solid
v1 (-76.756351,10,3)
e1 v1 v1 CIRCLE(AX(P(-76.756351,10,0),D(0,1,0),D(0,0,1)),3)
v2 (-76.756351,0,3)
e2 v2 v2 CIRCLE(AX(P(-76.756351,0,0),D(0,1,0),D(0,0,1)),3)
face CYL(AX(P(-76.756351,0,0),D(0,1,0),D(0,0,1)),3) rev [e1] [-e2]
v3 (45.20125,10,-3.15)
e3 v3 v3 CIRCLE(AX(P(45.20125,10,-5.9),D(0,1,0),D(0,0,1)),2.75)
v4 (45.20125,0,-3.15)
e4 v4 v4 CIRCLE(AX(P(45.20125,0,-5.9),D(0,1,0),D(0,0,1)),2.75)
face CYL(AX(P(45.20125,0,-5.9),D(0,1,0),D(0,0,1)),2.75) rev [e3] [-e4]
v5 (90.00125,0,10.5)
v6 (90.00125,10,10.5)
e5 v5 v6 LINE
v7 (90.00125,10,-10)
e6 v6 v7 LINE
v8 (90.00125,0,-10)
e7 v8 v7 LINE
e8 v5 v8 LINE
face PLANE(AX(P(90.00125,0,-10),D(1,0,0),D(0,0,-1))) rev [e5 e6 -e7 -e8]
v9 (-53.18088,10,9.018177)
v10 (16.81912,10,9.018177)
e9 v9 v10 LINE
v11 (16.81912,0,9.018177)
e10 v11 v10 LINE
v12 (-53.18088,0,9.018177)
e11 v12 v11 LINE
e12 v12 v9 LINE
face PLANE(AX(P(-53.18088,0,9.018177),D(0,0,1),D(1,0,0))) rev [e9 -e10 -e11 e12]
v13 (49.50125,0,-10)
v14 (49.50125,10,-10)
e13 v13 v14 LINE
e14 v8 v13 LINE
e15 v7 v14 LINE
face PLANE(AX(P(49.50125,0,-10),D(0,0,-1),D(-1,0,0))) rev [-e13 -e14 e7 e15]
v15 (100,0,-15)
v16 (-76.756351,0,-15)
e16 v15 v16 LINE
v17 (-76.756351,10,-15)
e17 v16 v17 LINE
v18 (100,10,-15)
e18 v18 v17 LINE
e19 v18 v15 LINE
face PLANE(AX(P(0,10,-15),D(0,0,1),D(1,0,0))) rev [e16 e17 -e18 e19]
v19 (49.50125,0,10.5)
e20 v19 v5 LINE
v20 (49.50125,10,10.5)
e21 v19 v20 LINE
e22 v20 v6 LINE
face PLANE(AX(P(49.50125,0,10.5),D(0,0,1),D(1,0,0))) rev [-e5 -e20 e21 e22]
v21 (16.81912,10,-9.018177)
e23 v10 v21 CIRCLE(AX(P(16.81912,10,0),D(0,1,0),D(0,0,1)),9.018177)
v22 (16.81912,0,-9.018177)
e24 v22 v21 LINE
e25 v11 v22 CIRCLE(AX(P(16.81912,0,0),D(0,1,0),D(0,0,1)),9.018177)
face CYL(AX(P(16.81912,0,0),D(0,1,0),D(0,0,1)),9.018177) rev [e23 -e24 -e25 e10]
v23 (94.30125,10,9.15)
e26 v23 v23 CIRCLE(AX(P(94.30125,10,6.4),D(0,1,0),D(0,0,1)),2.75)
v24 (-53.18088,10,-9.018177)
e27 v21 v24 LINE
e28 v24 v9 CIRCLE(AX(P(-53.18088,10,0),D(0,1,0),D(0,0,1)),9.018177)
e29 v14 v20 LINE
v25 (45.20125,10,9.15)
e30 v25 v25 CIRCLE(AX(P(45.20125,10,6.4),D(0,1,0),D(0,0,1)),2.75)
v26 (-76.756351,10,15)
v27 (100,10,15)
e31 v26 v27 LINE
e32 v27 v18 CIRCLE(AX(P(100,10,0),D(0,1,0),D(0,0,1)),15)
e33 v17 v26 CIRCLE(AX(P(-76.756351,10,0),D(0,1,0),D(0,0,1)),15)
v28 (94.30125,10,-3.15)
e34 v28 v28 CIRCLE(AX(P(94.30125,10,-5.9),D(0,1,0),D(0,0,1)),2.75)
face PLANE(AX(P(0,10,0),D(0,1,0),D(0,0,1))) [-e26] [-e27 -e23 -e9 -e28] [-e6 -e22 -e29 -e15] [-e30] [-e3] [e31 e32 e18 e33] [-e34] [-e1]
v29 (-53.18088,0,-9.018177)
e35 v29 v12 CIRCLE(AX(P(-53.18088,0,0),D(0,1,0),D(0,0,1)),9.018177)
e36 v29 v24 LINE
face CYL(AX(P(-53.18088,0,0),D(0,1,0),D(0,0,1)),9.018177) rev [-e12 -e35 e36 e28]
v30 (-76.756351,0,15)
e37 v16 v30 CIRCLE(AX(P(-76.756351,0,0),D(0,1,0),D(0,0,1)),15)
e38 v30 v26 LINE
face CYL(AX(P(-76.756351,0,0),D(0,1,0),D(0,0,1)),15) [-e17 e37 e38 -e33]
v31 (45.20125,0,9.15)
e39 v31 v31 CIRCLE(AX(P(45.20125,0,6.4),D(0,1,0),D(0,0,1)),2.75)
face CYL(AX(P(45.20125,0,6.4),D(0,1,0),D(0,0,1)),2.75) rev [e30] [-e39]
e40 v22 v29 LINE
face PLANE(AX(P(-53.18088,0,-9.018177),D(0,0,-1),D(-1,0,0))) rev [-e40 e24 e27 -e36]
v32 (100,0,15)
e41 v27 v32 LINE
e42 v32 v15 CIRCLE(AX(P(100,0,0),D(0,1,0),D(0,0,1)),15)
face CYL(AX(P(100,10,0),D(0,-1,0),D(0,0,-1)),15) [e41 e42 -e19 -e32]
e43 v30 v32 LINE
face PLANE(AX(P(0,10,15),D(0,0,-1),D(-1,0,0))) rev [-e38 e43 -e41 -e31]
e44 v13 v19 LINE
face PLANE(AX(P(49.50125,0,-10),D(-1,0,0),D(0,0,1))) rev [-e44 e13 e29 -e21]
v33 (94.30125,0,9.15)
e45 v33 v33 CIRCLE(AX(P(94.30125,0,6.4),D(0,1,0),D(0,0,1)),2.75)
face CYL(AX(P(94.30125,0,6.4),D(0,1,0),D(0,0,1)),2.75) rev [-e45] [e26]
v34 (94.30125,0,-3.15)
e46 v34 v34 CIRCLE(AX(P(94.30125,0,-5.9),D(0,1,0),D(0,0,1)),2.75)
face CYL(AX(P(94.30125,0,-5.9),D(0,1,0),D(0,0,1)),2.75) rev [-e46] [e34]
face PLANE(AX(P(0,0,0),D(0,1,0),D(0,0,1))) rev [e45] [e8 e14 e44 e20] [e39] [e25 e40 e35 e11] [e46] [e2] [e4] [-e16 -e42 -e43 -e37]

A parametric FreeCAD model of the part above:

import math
import FreeCAD as App
import Part
import Sketcher

doc = App.newDocument("Part")
body = doc.addObject("PartDesign::Body", "Body")

# Sketch on XZ plane
sketch1 = body.newObject("Sketcher::SketchObject", "Sketch")
sketch1.AttachmentSupport = (doc.getObject("XZ_Plane"), [""])
sketch1.MapMode = "FlatFace"
sketch1.addGeometry([
    Part.LineSegment(App.Vector(100, -15, 0), App.Vector(0, -15, 0)),  # 0
    Part.ArcOfCircle(Part.Circle(App.Vector(0, 0, 0), App.Vector(0, 0, 1), 15), math.radians(90), math.radians(270)),  # 1
    Part.LineSegment(App.Vector(0, 15, 0), App.Vector(100, 15, 0)),  # 2
    Part.ArcOfCircle(Part.Circle(App.Vector(100, 0, 0), App.Vector(0, 0, 1), 15), math.radians(-90), math.radians(90)),  # 3
    Part.Circle(App.Vector(0, 0, 0), App.Vector(0, 0, 1), 1.4),  # 4
], False)
sketch1.addConstraint([
    Sketcher.Constraint("Tangent", 0, 2, 1, 2),
    Sketcher.Constraint("Tangent", 1, 1, 2, 1),
    Sketcher.Constraint("Tangent", 2, 2, 3, 2),
    Sketcher.Constraint("Tangent", 3, 1, 0, 1),
    Sketcher.Constraint("Horizontal", 0),
    Sketcher.Constraint("Horizontal", 2),
    Sketcher.Constraint("Coincident", 1, 3, -1, 1),
    Sketcher.Constraint("Coincident", 4, 3, -1, 1),
    Sketcher.Constraint("Radius", 1, 15.0),
    Sketcher.Constraint("Diameter", 4, 2.9),
    Sketcher.Constraint("DistanceX", 0, 2, 0, 1, 100.0),
])
pad1 = body.newObject("PartDesign::Pad", "Pad")
pad1.Profile = sketch1
pad1.Length = 10
pad1.Reversed = True

# Sketch on XZ plane
sketch2 = body.newObject("Sketcher::SketchObject", "Sketch001")
sketch2.AttachmentSupport = (doc.getObject("XZ_Plane"), [""])
sketch2.MapMode = "FlatFace"
sketch2.AttachmentOffset = App.Placement(App.Vector(0, 0, -10), App.Rotation())
sketch2.addGeometry([
    Part.LineSegment(App.Vector(91, -11, 0), App.Vector(91, 9, 0)),
    Part.LineSegment(App.Vector(91, 9, 0), App.Vector(98, 9, 0)),
    Part.LineSegment(App.Vector(98, 9, 0), App.Vector(98, -11, 0)),
    Part.LineSegment(App.Vector(98, -11, 0), App.Vector(91, -11, 0)),
], False)
sketch2.addConstraint([
    Sketcher.Constraint("Coincident", 0, 2, 1, 1),
    Sketcher.Constraint("Coincident", 1, 2, 2, 1),
    Sketcher.Constraint("Coincident", 2, 2, 3, 1),
    Sketcher.Constraint("Coincident", 3, 2, 0, 1),
    Sketcher.Constraint("Vertical", 0),
    Sketcher.Constraint("Horizontal", 1),
    Sketcher.Constraint("Vertical", 2),
    Sketcher.Constraint("Horizontal", 3),
    Sketcher.Constraint("DistanceX", 1, 1, 1, 2, 7.047145),
    Sketcher.Constraint("DistanceY", 0, 1, 0, 2, 19.860135),
    Sketcher.Constraint("DistanceX", -1, 1, 0, 2, 91.257829),
    Sketcher.Constraint("DistanceY", -1, 1, 0, 2, 9.101887),
])
pad2 = body.newObject("PartDesign::Pad", "Pad001")
pad2.Profile = sketch2
pad2.Length = 10

# Sketch on XZ plane
sketch3 = body.newObject("Sketcher::SketchObject", "Sketch002")
sketch3.AttachmentSupport = (doc.getObject("XZ_Plane"), [""])
sketch3.MapMode = "FlatFace"
sketch3.AttachmentOffset = App.Placement(App.Vector(0, 0, -10), App.Rotation())
sketch3.addGeometry([
    Part.LineSegment(App.Vector(12.2, -15, 0), App.Vector(-76.8, -15, 0)),  # 0
    Part.ArcOfCircle(Part.Circle(App.Vector(-76.8, 0, 0), App.Vector(0, 0, 1), 15), math.radians(90), math.radians(270)),  # 1
    Part.LineSegment(App.Vector(-76.8, 15, 0), App.Vector(12.2, 15, 0)),  # 2
    Part.ArcOfCircle(Part.Circle(App.Vector(12.2, 0, 0), App.Vector(0, 0, 1), 15), math.radians(-90), math.radians(90)),  # 3
    Part.Circle(App.Vector(-76.8, 0, 0), App.Vector(0, 0, 1), 1.4),  # 4
], False)
sketch3.addConstraint([
    Sketcher.Constraint("Tangent", 0, 2, 1, 2),
    Sketcher.Constraint("Tangent", 1, 1, 2, 1),
    Sketcher.Constraint("Tangent", 2, 2, 3, 2),
    Sketcher.Constraint("Tangent", 3, 1, 0, 1),
    Sketcher.Constraint("Horizontal", 0),
    Sketcher.Constraint("Horizontal", 2),
    Sketcher.Constraint("Coincident", 4, 3, 1, 3),
    Sketcher.Constraint("PointOnObject", 1, 3, -1),
    Sketcher.Constraint("Radius", 1, 15.0),
    Sketcher.Constraint("Diameter", 4, 2.9),
    Sketcher.Constraint("DistanceX", 0, 2, 0, 1, 88.932404),
    Sketcher.Constraint("DistanceX", 1, 3, -1, 1, 76.756351),
])
pad3 = body.newObject("PartDesign::Pad", "Pad002")
pad3.Profile = sketch3
pad3.Length = 10

# Sketch on XZ plane
sketch4 = body.newObject("Sketcher::SketchObject", "Sketch003")
sketch4.AttachmentSupport = (doc.getObject("XZ_Plane"), [""])
sketch4.MapMode = "FlatFace"
sketch4.AttachmentOffset = App.Placement(App.Vector(0, 0, -10), App.Rotation())
sketch4.addGeometry(Part.Circle(App.Vector(-76.8, 0, 0), App.Vector(0, 0, 1), 2.9), False)
sketch4.addConstraint([
    Sketcher.Constraint("PointOnObject", 0, 3, -1),
    Sketcher.Constraint("Diameter", 0, 5.85),
    Sketcher.Constraint("DistanceX", 0, 3, -1, 1, 76.756351),
])
pocket1 = body.newObject("PartDesign::Pocket", "Pocket")
pocket1.Profile = sketch4
pocket1.Length = 2
pocket1.Reversed = True

# Sketch on XZ plane
sketch5 = body.newObject("Sketcher::SketchObject", "Sketch004")
sketch5.AttachmentSupport = (doc.getObject("XZ_Plane"), [""])
sketch5.MapMode = "FlatFace"
sketch5.AttachmentOffset = App.Placement(App.Vector(0, 0, -10), App.Rotation())
sketch5.addGeometry([
    Part.LineSegment(App.Vector(17, -9, 0), App.Vector(-53, -9, 0)),
    Part.ArcOfCircle(Part.Circle(App.Vector(-53, 0, 0), App.Vector(0, 0, 1), 9), math.radians(90), math.radians(270)),
    Part.LineSegment(App.Vector(-53, 9, 0), App.Vector(17, 9, 0)),
    Part.ArcOfCircle(Part.Circle(App.Vector(17, 0, 0), App.Vector(0, 0, 1), 9), math.radians(-90), math.radians(90)),
], False)
sketch5.addConstraint([
    Sketcher.Constraint("Tangent", 0, 2, 1, 2),
    Sketcher.Constraint("Tangent", 1, 1, 2, 1),
    Sketcher.Constraint("Tangent", 2, 2, 3, 2),
    Sketcher.Constraint("Tangent", 3, 1, 0, 1),
    Sketcher.Constraint("Horizontal", 0),
    Sketcher.Constraint("Horizontal", 2),
    Sketcher.Constraint("PointOnObject", 1, 3, -1),
    Sketcher.Constraint("DistanceX", 0, 2, 0, 1, 70.0),
    Sketcher.Constraint("Radius", 1, 9.018177),
    Sketcher.Constraint("DistanceX", 1, 3, -1, 1, 53.18088),
])
pocket2 = body.newObject("PartDesign::Pocket", "Pocket001")
pocket2.Profile = sketch5
pocket2.Length = 10
pocket2.Reversed = True

# Sketch on XZ plane
sketch6 = body.newObject("Sketcher::SketchObject", "Sketch005")
sketch6.AttachmentSupport = (doc.getObject("XZ_Plane"), [""])
sketch6.MapMode = "FlatFace"
sketch6.AttachmentOffset = App.Placement(App.Vector(0, 0, -10), App.Rotation())
sketch6.addGeometry(Part.Circle(App.Vector(-76.8, 0, 0), App.Vector(0, 0, 1), 3), False)
sketch6.addConstraint([
    Sketcher.Constraint("PointOnObject", 0, 3, -1),
    Sketcher.Constraint("Diameter", 0, 6.0),
    Sketcher.Constraint("DistanceX", 0, 3, -1, 1, 76.756351),
])
pocket3 = body.newObject("PartDesign::Pocket", "Pocket002")
pocket3.Profile = sketch6
pocket3.Length = 10
pocket3.Reversed = True

# Sketch on XZ plane
sketch7 = body.newObject("Sketcher::SketchObject", "Sketch006")
sketch7.AttachmentSupport = (doc.getObject("XZ_Plane"), [""])
sketch7.MapMode = "FlatFace"
sketch7.AttachmentOffset = App.Placement(App.Vector(0, 0, -10), App.Rotation())
sketch7.addGeometry([
    Part.Circle(App.Vector(94.3, -5.9, 0), App.Vector(0, 0, 1), 2.8),  # 0
    Part.Circle(App.Vector(94.3, 6.4, 0), App.Vector(0, 0, 1), 2.8),  # 1
    Part.LineSegment(App.Vector(49.5, -10, 0), App.Vector(49.5, 10.5, 0)),  # 2
    Part.LineSegment(App.Vector(49.5, 10.5, 0), App.Vector(90, 10.5, 0)),  # 3
    Part.LineSegment(App.Vector(90, 10.5, 0), App.Vector(90, -10, 0)),  # 4
    Part.LineSegment(App.Vector(90, -10, 0), App.Vector(49.5, -10, 0)),  # 5
], False)
sketch7.addConstraint([
    Sketcher.Constraint("Coincident", 2, 2, 3, 1),
    Sketcher.Constraint("Coincident", 3, 2, 4, 1),
    Sketcher.Constraint("Coincident", 4, 2, 5, 1),
    Sketcher.Constraint("Coincident", 5, 2, 2, 1),
    Sketcher.Constraint("Vertical", 2),
    Sketcher.Constraint("Horizontal", 3),
    Sketcher.Constraint("Vertical", 4),
    Sketcher.Constraint("Horizontal", 5),
    Sketcher.Constraint("Equal", 0, 1),
    Sketcher.Constraint("Vertical", 0, 3, 1, 3),
    Sketcher.Constraint("Diameter", 0, 5.5),
    Sketcher.Constraint("DistanceX", 3, 1, 3, 2, 40.5),
    Sketcher.Constraint("DistanceY", 2, 1, 2, 2, 20.5),
    Sketcher.Constraint("DistanceY", 4, 2, -1, 1, 10.0),
    Sketcher.Constraint("DistanceY", 0, 3, -1, 1, 5.9),
    Sketcher.Constraint("DistanceY", -1, 1, 1, 3, 6.4),
    Sketcher.Constraint("DistanceX", 2, 2, 1, 3, 44.8),
    Sketcher.Constraint("DistanceX", -1, 1, 0, 3, 94.30125),
])
pocket4 = body.newObject("PartDesign::Pocket", "Pocket003")
pocket4.Profile = sketch7
pocket4.Length = 10
pocket4.Reversed = True

# Sketch on XZ plane
sketch8 = body.newObject("Sketcher::SketchObject", "Sketch007")
sketch8.AttachmentSupport = (doc.getObject("XZ_Plane"), [""])
sketch8.MapMode = "FlatFace"
sketch8.AttachmentOffset = App.Placement(App.Vector(0, 0, -10), App.Rotation())
sketch8.addGeometry([
    Part.Circle(App.Vector(45.2, -5.9, 0), App.Vector(0, 0, 1), 2.8),
    Part.Circle(App.Vector(45.2, 6.4, 0), App.Vector(0, 0, 1), 2.8),
], False)
sketch8.addConstraint([
    Sketcher.Constraint("Equal", 0, 1),
    Sketcher.Constraint("Vertical", 0, 3, 1, 3),
    Sketcher.Constraint("Diameter", 0, 5.5),
    Sketcher.Constraint("DistanceY", 0, 3, -1, 1, 5.9),
    Sketcher.Constraint("DistanceY", -1, 1, 1, 3, 6.4),
    Sketcher.Constraint("DistanceX", -1, 1, 0, 3, 45.20125),
])
pocket5 = body.newObject("PartDesign::Pocket", "Pocket004")
pocket5.Profile = sketch8
pocket5.Length = 10
pocket5.Reversed = True

doc.recompute()
